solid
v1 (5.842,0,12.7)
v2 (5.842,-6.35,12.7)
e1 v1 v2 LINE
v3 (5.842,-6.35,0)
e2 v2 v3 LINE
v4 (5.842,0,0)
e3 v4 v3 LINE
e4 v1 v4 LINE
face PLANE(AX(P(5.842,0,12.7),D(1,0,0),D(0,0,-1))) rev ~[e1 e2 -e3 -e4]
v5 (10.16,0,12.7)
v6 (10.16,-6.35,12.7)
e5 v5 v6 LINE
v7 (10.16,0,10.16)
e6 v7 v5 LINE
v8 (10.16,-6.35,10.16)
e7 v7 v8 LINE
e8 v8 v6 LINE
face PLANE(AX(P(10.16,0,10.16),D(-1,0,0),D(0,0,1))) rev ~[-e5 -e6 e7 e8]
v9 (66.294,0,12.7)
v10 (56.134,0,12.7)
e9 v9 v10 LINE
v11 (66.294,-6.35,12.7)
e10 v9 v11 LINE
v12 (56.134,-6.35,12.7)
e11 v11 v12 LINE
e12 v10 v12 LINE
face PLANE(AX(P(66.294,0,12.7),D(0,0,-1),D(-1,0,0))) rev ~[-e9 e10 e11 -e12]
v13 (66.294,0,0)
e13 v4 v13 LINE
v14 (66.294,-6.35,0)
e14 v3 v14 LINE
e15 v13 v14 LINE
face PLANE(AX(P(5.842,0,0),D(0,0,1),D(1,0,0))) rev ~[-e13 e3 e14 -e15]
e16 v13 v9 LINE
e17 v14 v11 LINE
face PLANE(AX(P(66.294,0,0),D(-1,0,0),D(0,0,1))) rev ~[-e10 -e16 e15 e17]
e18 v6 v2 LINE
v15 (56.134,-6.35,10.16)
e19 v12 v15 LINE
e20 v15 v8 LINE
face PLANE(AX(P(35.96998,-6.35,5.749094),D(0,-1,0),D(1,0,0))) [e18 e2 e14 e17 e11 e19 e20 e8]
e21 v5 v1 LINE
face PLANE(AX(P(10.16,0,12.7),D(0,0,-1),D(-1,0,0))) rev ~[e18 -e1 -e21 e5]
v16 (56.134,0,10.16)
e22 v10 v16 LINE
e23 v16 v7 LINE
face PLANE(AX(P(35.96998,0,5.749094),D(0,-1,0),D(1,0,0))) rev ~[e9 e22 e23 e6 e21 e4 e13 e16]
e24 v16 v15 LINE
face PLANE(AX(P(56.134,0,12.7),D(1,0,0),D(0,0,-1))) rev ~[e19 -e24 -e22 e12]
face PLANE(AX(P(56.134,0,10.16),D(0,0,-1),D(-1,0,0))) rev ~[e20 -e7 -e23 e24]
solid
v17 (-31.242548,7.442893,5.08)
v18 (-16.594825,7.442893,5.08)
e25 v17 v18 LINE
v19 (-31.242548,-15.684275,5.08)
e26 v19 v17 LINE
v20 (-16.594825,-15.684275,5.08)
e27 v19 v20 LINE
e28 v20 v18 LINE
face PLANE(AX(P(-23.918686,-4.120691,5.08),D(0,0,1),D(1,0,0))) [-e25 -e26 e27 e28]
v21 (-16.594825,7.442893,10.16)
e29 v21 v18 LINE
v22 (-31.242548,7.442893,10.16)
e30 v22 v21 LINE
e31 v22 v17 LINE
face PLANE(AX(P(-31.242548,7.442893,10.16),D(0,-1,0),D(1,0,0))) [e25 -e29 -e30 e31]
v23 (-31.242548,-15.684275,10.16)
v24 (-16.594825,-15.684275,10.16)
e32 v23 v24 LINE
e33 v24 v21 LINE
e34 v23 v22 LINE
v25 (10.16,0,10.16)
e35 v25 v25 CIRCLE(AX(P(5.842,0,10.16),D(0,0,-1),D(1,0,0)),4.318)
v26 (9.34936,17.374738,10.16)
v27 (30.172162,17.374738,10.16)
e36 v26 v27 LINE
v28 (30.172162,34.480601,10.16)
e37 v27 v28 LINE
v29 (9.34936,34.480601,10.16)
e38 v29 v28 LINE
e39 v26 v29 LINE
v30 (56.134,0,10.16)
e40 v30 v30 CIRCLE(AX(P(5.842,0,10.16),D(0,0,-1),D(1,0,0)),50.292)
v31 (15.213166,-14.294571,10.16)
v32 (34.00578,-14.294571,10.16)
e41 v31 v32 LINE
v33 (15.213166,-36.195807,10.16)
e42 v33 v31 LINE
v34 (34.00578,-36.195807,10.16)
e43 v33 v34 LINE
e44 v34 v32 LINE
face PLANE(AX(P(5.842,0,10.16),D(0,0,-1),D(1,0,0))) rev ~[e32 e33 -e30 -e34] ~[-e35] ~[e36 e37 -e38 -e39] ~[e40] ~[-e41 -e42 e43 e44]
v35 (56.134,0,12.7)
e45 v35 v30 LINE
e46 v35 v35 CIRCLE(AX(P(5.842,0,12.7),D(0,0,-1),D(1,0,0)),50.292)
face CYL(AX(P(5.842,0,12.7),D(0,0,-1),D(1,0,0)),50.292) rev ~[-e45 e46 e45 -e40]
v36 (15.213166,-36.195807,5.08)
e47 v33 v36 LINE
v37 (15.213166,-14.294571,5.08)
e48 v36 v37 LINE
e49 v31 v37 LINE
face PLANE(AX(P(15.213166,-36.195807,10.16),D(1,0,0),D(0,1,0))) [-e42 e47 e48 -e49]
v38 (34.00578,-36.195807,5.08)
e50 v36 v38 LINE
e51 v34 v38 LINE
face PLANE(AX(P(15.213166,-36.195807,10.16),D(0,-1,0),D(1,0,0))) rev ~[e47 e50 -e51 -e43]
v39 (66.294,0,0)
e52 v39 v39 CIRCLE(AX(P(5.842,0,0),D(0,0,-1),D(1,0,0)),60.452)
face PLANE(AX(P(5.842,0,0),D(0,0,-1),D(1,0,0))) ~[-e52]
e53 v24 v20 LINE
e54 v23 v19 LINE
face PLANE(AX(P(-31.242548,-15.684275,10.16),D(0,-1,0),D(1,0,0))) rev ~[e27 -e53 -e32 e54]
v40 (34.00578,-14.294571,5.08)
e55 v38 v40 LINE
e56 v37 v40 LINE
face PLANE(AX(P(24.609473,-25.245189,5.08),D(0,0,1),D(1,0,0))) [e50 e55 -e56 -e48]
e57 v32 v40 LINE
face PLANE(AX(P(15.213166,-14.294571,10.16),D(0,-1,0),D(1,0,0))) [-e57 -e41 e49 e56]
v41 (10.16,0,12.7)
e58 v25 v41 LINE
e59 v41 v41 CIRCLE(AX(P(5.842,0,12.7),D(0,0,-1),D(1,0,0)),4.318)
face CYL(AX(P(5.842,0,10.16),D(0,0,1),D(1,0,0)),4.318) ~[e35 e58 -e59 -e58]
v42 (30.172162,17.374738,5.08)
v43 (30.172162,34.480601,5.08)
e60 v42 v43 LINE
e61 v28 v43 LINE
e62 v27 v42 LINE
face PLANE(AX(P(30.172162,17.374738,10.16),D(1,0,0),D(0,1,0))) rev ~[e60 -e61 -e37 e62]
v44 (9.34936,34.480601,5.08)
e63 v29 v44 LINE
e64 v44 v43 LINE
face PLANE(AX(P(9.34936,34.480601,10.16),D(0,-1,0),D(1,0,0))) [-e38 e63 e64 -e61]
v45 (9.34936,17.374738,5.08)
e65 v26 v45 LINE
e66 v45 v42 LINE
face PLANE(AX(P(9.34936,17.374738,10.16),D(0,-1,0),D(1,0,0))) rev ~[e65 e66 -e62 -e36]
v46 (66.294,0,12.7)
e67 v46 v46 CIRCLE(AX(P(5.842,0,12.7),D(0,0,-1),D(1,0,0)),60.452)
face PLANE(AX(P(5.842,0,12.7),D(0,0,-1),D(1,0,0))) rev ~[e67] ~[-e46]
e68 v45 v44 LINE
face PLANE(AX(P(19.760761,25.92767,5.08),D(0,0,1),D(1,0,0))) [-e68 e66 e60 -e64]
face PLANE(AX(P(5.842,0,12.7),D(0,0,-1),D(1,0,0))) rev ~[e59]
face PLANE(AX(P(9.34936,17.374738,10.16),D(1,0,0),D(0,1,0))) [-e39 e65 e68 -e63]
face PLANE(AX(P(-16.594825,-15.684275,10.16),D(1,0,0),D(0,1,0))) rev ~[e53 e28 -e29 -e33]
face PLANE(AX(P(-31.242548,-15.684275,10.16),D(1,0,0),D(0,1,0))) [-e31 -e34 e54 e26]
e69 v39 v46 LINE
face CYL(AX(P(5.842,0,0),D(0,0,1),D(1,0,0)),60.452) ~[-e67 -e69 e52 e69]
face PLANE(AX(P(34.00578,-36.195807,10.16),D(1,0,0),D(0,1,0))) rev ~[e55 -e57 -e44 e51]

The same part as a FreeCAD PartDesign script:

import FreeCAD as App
import Part
import Sketcher
from FreeCAD import Vector
Q = App.Units.Quantity

doc = App.newDocument("Part")
params = doc.addObject("Spreadsheet::Sheet", "Params")
for row, (alias, value) in enumerate([
    ("sketch1_width", "0.4 in"),
    ("sketch1_height", "0.5 in"),
    ("sketch1_height2", "0.1 in"),
    ("sketch1_width2", "2.38 in"),
    ("sketch1_width3", "1.81 in"),
    ("revolution_angle", "360 deg"),
    ("pocket1_length", "0.2 in"),
    ("sketch3_width", "0.4 in"),
    ("sketch3_height", "0.5 in"),
    ("sketch3_height2", "0.1 in"),
    ("sketch3_width2", "2.38 in"),
    ("sketch3_width3", "1.81 in"),
    ("pad1_length", "0.25 in"),
], start=1):
    params.set(f"A{row}", alias)
    params.set(f"B{row}", "=" + value)
    params.setAlias(f"B{row}", alias)

body = doc.addObject("PartDesign::Body", "Body")

sketch1 = doc.addObject("Sketcher::SketchObject", "Sketch")
body.addObject(sketch1)
sketch1.AttachmentSupport = (doc.XZ_Plane, [""])
sketch1.MapMode = "FlatFace"
sketch1.addGeometry([
    Part.LineSegment(Vector(5.8, 12.7, 0), Vector(5.8, 0, 0)),
    Part.LineSegment(Vector(5.8, 0, 0), Vector(66.3, 0, 0)),
    Part.LineSegment(Vector(66.3, 0, 0), Vector(66.3, 12.7, 0)),
    Part.LineSegment(Vector(66.3, 12.7, 0), Vector(56.1, 12.7, 0)),
    Part.LineSegment(Vector(56.1, 12.7, 0), Vector(56.1, 10.2, 0)),
    Part.LineSegment(Vector(56.1, 10.2, 0), Vector(10.2, 10.2, 0)),
    Part.LineSegment(Vector(10.2, 10.2, 0), Vector(10.2, 12.7, 0)),
    Part.LineSegment(Vector(10.2, 12.7, 0), Vector(5.8, 12.7, 0)),
], False)
sketch1.addGeometry(Part.LineSegment(Vector(5.8, 12.7, 0), Vector(5.8, 0, 0)), True)
sketch1.addConstraint([
    Sketcher.Constraint("Coincident", 0, 2, 1, 1),
    Sketcher.Constraint("Coincident", 1, 2, 2, 1),
    Sketcher.Constraint("Coincident", 2, 2, 3, 1),
    Sketcher.Constraint("Coincident", 3, 2, 4, 1),
    Sketcher.Constraint("Coincident", 4, 2, 5, 1),
    Sketcher.Constraint("Coincident", 5, 2, 6, 1),
    Sketcher.Constraint("Coincident", 6, 2, 7, 1),
    Sketcher.Constraint("Coincident", 7, 2, 0, 1),
    Sketcher.Constraint("Vertical", 0),
    Sketcher.Constraint("Horizontal", 1),
    Sketcher.Constraint("Vertical", 2),
    Sketcher.Constraint("Horizontal", 3),
    Sketcher.Constraint("Vertical", 4),
    Sketcher.Constraint("Horizontal", 5),
    Sketcher.Constraint("Vertical", 6),
    Sketcher.Constraint("Horizontal", 7),
    Sketcher.Constraint("Vertical", 8),
    Sketcher.Constraint("Coincident", 8, 1, 7, 2),
    Sketcher.Constraint("PointOnObject", 0, 2, -1),
    Sketcher.Constraint("PointOnObject", 8, 2, -1),
    Sketcher.Constraint("Horizontal", 3, 2, 6, 2),
    Sketcher.Constraint("DistanceX", 3, 2, 3, 1, Q("0.4 in")),
    Sketcher.Constraint("DistanceY", 0, 2, 0, 1, Q("0.5 in")),
    Sketcher.Constraint("DistanceY", 4, 2, 4, 1, Q("0.1 in")),
    Sketcher.Constraint("DistanceX", 1, 1, 1, 2, Q("2.38 in")),
    Sketcher.Constraint("DistanceX", 5, 2, 5, 1, Q("1.81 in")),
    Sketcher.Constraint("DistanceX", -1, 1, 5, 2, Q("0.4 in")),
])
sketch1.setExpression("Constraints[21]", "Params.sketch1_width")
sketch1.setExpression("Constraints[22]", "Params.sketch1_height")
sketch1.setExpression("Constraints[23]", "Params.sketch1_height2")
sketch1.setExpression("Constraints[24]", "Params.sketch1_width2")
sketch1.setExpression("Constraints[25]", "Params.sketch1_width3")
revolution = doc.addObject("PartDesign::Revolution", "Revolution")
body.addObject(revolution)
revolution.Profile = sketch1
revolution.ReferenceAxis = (sketch1, ["Axis0"])
revolution.setExpression("Angle", "Params.revolution_angle")

sketch2 = doc.addObject("Sketcher::SketchObject", "Sketch001")
body.addObject(sketch2)
sketch2.AttachmentSupport = (doc.XY_Plane, [""])
sketch2.MapMode = "FlatFace"
sketch2.AttachmentOffset = App.Placement(Vector(0, 0, 0.4 * 25.4), App.Rotation())
sketch2.addGeometry([
    Part.LineSegment(Vector(15, -14, 0), Vector(15, -36, 0)),
    Part.LineSegment(Vector(15, -36, 0), Vector(34, -36, 0)),
    Part.LineSegment(Vector(34, -36, 0), Vector(34, -14, 0)),
    Part.LineSegment(Vector(34, -14, 0), Vector(15, -14, 0)),
    Part.LineSegment(Vector(-31, 7, 0), Vector(-31, -16, 0)),
    Part.LineSegment(Vector(-31, -16, 0), Vector(-17, -16, 0)),
    Part.LineSegment(Vector(-17, -16, 0), Vector(-17, 7, 0)),
    Part.LineSegment(Vector(-17, 7, 0), Vector(-31, 7, 0)),
    Part.LineSegment(Vector(9, 34, 0), Vector(9, 17, 0)),
    Part.LineSegment(Vector(9, 17, 0), Vector(30, 17, 0)),
    Part.LineSegment(Vector(30, 17, 0), Vector(30, 34, 0)),
    Part.LineSegment(Vector(30, 34, 0), Vector(9, 34, 0)),
], False)
sketch2.addConstraint([
    Sketcher.Constraint("Coincident", 0, 2, 1, 1),
    Sketcher.Constraint("Coincident", 1, 2, 2, 1),
    Sketcher.Constraint("Coincident", 2, 2, 3, 1),
    Sketcher.Constraint("Coincident", 3, 2, 0, 1),
    Sketcher.Constraint("Coincident", 4, 2, 5, 1),
    Sketcher.Constraint("Coincident", 5, 2, 6, 1),
    Sketcher.Constraint("Coincident", 6, 2, 7, 1),
    Sketcher.Constraint("Coincident", 7, 2, 4, 1),
    Sketcher.Constraint("Coincident", 8, 2, 9, 1),
    Sketcher.Constraint("Coincident", 9, 2, 10, 1),
    Sketcher.Constraint("Coincident", 10, 2, 11, 1),
    Sketcher.Constraint("Coincident", 11, 2, 8, 1),
    Sketcher.Constraint("Vertical", 0),
    Sketcher.Constraint("Horizontal", 1),
    Sketcher.Constraint("Vertical", 2),
    Sketcher.Constraint("Horizontal", 3),
    Sketcher.Constraint("Vertical", 4),
    Sketcher.Constraint("Horizontal", 5),
    Sketcher.Constraint("Vertical", 6),
    Sketcher.Constraint("Horizontal", 7),
    Sketcher.Constraint("Vertical", 8),
    Sketcher.Constraint("Horizontal", 9),
    Sketcher.Constraint("Vertical", 10),
    Sketcher.Constraint("Horizontal", 11),
    Sketcher.Constraint("DistanceX", 9, 1, 9, 2, Q("20.822802 mm")),
    Sketcher.Constraint("DistanceY", -1, 1, 10, 2, Q("34.480601 mm")),
    Sketcher.Constraint("DistanceY", 0, 2, 6, 2, Q("43.6387 mm")),
    Sketcher.Constraint("DistanceX", 1, 1, 1, 2, Q("18.792614 mm")),
    Sketcher.Constraint("DistanceX", 5, 1, 5, 2, Q("14.647723 mm")),
    Sketcher.Constraint("DistanceY", 0, 2, 0, 1, Q("21.901235 mm")),
    Sketcher.Constraint("DistanceY", 4, 2, 4, 1, Q("23.127168 mm")),
    Sketcher.Constraint("DistanceY", 8, 2, 8, 1, Q("17.105863 mm")),
    Sketcher.Constraint("DistanceX", -1, 1, 1, 2, Q("34.00578 mm")),
    Sketcher.Constraint("DistanceY", 2, 2, -1, 1, Q("14.294571 mm")),
    Sketcher.Constraint("DistanceX", -1, 1, 8, 2, Q("9.34936 mm")),
    Sketcher.Constraint("DistanceX", 5, 2, 3, 2, Q("31.807991 mm")),
])
pocket1 = doc.addObject("PartDesign::Pocket", "Pocket")
body.addObject(pocket1)
pocket1.Profile = sketch2
pocket1.setExpression("Length", "Params.pocket1_length")
body2 = doc.addObject("PartDesign::Body", "Body001")

sketch3 = doc.addObject("Sketcher::SketchObject", "Sketch002")
body2.addObject(sketch3)
sketch3.AttachmentSupport = (doc.getObject("XZ_Plane001"), [""])
sketch3.MapMode = "FlatFace"
sketch3.addGeometry([
    Part.LineSegment(Vector(5.8, 12.7, 0), Vector(5.8, 0, 0)),
    Part.LineSegment(Vector(5.8, 0, 0), Vector(66.3, 0, 0)),
    Part.LineSegment(Vector(66.3, 0, 0), Vector(66.3, 12.7, 0)),
    Part.LineSegment(Vector(66.3, 12.7, 0), Vector(56.1, 12.7, 0)),
    Part.LineSegment(Vector(56.1, 12.7, 0), Vector(56.1, 10.2, 0)),
    Part.LineSegment(Vector(56.1, 10.2, 0), Vector(10.2, 10.2, 0)),
    Part.LineSegment(Vector(10.2, 10.2, 0), Vector(10.2, 12.7, 0)),
    Part.LineSegment(Vector(10.2, 12.7, 0), Vector(5.8, 12.7, 0)),
], False)
sketch3.addConstraint([
    Sketcher.Constraint("Coincident", 0, 2, 1, 1),
    Sketcher.Constraint("Coincident", 1, 2, 2, 1),
    Sketcher.Constraint("Coincident", 2, 2, 3, 1),
    Sketcher.Constraint("Coincident", 3, 2, 4, 1),
    Sketcher.Constraint("Coincident", 4, 2, 5, 1),
    Sketcher.Constraint("Coincident", 5, 2, 6, 1),
    Sketcher.Constraint("Coincident", 6, 2, 7, 1),
    Sketcher.Constraint("Coincident", 7, 2, 0, 1),
    Sketcher.Constraint("Vertical", 0),
    Sketcher.Constraint("Horizontal", 1),
    Sketcher.Constraint("Vertical", 2),
    Sketcher.Constraint("Horizontal", 3),
    Sketcher.Constraint("Vertical", 4),
    Sketcher.Constraint("Horizontal", 5),
    Sketcher.Constraint("Vertical", 6),
    Sketcher.Constraint("Horizontal", 7),
    Sketcher.Constraint("PointOnObject", 0, 2, -1),
    Sketcher.Constraint("Horizontal", 3, 2, 6, 2),
    Sketcher.Constraint("DistanceX", 3, 2, 3, 1, Q("0.4 in")),
    Sketcher.Constraint("DistanceY", 0, 2, 0, 1, Q("0.5 in")),
    Sketcher.Constraint("DistanceY", 4, 2, 4, 1, Q("0.1 in")),
    Sketcher.Constraint("DistanceX", 1, 1, 1, 2, Q("2.38 in")),
    Sketcher.Constraint("DistanceX", 5, 2, 5, 1, Q("1.81 in")),
    Sketcher.Constraint("DistanceX", -1, 1, 5, 2, Q("0.4 in")),
])
sketch3.setExpression("Constraints[18]", "Params.sketch3_width")
sketch3.setExpression("Constraints[19]", "Params.sketch3_height")
sketch3.setExpression("Constraints[20]", "Params.sketch3_height2")
sketch3.setExpression("Constraints[21]", "Params.sketch3_width2")
sketch3.setExpression("Constraints[22]", "Params.sketch3_width3")
pad1 = doc.addObject("PartDesign::Pad", "Pad")
body2.addObject(pad1)
pad1.Profile = sketch3
pad1.setExpression("Length", "Params.pad1_length")

doc.recompute()
